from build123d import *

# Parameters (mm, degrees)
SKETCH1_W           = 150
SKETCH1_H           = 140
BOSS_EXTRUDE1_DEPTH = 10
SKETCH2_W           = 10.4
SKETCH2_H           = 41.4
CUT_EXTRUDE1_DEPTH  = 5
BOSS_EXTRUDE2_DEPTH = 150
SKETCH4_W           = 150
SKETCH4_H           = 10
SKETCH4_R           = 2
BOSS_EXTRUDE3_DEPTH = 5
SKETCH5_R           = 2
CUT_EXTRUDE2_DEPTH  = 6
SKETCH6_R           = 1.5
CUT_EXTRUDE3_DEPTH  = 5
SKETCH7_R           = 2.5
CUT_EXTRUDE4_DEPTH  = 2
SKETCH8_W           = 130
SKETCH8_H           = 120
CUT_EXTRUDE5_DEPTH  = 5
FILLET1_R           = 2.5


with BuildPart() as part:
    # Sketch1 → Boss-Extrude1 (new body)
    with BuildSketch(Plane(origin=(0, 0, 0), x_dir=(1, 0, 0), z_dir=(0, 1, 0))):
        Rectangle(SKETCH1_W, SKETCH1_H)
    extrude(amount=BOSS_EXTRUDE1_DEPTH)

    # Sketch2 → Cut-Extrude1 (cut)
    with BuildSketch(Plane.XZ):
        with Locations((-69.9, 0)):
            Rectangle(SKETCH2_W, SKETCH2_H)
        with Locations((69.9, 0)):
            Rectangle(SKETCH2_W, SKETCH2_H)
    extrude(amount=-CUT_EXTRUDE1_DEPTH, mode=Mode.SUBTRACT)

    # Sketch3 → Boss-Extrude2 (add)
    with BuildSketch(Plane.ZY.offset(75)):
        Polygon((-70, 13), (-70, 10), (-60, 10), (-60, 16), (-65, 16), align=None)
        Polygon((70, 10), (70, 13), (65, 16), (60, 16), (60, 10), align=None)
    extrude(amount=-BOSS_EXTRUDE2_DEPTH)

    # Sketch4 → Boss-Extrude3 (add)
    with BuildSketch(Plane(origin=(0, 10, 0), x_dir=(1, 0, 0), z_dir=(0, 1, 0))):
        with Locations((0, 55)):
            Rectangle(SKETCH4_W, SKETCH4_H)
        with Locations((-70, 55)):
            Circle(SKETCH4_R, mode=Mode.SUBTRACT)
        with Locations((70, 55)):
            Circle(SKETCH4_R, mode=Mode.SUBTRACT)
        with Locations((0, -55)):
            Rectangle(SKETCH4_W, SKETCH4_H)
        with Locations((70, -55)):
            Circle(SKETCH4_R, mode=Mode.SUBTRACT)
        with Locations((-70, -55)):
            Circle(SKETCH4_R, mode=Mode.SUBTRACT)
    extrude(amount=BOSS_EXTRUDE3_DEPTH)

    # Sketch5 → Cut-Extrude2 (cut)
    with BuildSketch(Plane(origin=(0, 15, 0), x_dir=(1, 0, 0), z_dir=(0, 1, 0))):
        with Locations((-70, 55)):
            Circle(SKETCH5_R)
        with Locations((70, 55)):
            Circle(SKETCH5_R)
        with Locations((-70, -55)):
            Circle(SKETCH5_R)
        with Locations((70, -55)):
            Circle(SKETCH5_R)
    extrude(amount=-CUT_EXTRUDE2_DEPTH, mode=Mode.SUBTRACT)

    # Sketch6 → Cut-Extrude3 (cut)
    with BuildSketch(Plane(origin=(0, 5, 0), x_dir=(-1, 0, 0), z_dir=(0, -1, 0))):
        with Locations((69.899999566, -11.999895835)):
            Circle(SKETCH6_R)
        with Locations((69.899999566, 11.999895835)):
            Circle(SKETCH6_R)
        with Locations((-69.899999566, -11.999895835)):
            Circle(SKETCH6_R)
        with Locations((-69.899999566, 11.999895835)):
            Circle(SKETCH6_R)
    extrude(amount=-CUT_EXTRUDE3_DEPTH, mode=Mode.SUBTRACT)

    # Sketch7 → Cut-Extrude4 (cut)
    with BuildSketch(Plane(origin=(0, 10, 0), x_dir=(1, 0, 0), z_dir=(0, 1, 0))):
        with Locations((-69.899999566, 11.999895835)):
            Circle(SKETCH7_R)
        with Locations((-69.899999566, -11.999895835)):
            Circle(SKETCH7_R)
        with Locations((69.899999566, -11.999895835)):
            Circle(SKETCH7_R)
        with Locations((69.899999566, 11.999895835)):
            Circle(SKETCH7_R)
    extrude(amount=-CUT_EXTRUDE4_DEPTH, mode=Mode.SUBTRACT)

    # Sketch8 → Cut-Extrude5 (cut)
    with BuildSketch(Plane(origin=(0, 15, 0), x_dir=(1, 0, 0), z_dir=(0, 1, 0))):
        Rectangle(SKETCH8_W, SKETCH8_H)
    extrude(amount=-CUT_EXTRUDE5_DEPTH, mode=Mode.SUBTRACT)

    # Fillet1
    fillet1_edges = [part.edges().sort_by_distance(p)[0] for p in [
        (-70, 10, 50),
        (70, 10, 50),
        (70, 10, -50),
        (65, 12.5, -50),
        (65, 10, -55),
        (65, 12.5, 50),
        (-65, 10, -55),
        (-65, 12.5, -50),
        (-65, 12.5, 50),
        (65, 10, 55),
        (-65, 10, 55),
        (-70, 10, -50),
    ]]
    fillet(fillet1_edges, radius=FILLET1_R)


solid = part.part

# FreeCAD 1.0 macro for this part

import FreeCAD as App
import Part
import Sketcher
from FreeCAD import Vector
Q = App.Units.Quantity


def edges_at(feature, points):
    """Names of the edges that pass closest to the given points."""
    edges = feature.Shape.Edges
    near = lambda p: min(range(len(edges)), key=lambda i: edges[i].distToShape(Part.Vertex(*p))[0])
    return sorted({f"Edge{near(p) + 1}" for p in points})

doc = App.newDocument("Part")
body = doc.addObject("PartDesign::Body", "Body")

# Sketch on XZ plane
sketch1 = body.newObject("Sketcher::SketchObject", "Sketch")
sketch1.AttachmentSupport = (doc.getObject("XZ_Plane"), [""])
sketch1.MapMode = "FlatFace"
sketch1.addGeometry(Part.LineSegment(Vector(-75, -70, 0), Vector(-75, 70, 0)), False)
sketch1.addGeometry(Part.LineSegment(Vector(-75, 70, 0), Vector(75, 70, 0)), False)
sketch1.addGeometry(Part.LineSegment(Vector(75, 70, 0), Vector(75, -70, 0)), False)
sketch1.addGeometry(Part.LineSegment(Vector(75, -70, 0), Vector(-75, -70, 0)), False)
sketch1.addConstraint(Sketcher.Constraint("Coincident", 0, 2, 1, 1))
sketch1.addConstraint(Sketcher.Constraint("Coincident", 1, 2, 2, 1))
sketch1.addConstraint(Sketcher.Constraint("Coincident", 2, 2, 3, 1))
sketch1.addConstraint(Sketcher.Constraint("Coincident", 3, 2, 0, 1))
sketch1.addConstraint(Sketcher.Constraint("Vertical", 0))
sketch1.addConstraint(Sketcher.Constraint("Horizontal", 1))
sketch1.addConstraint(Sketcher.Constraint("Vertical", 2))
sketch1.addConstraint(Sketcher.Constraint("Horizontal", 3))
sketch1.addConstraint(Sketcher.Constraint("Symmetric", 0, 2, 2, 2, -1, 1))
sketch1.addConstraint(Sketcher.Constraint("DistanceX", 1, 1, 1, 2, Q("150 mm")))
sketch1.addConstraint(Sketcher.Constraint("DistanceY", 0, 1, 0, 2, Q("140 mm")))
pad1 = body.newObject("PartDesign::Pad", "Pad")
pad1.Profile = sketch1
pad1.Length = 10
pad1.Reversed = True

# Sketch on XZ plane
sketch2 = body.newObject("Sketcher::SketchObject", "Sketch001")
sketch2.AttachmentSupport = (doc.getObject("XZ_Plane"), [""])
sketch2.MapMode = "FlatFace"
sketch2.addGeometry(Part.LineSegment(Vector(-75, 21, 0), Vector(-75, -21, 0)), False)
sketch2.addGeometry(Part.LineSegment(Vector(-75, -21, 0), Vector(-65, -21, 0)), False)
sketch2.addGeometry(Part.LineSegment(Vector(-65, -21, 0), Vector(-65, 21, 0)), False)
sketch2.addGeometry(Part.LineSegment(Vector(-65, 21, 0), Vector(-75, 21, 0)), False)
sketch2.addGeometry(Part.LineSegment(Vector(65, 21, 0), Vector(65, -21, 0)), False)
sketch2.addGeometry(Part.LineSegment(Vector(65, -21, 0), Vector(75, -21, 0)), False)
sketch2.addGeometry(Part.LineSegment(Vector(75, -21, 0), Vector(75, 21, 0)), False)
sketch2.addGeometry(Part.LineSegment(Vector(75, 21, 0), Vector(65, 21, 0)), False)
sketch2.addConstraint(Sketcher.Constraint("Coincident", 0, 2, 1, 1))
sketch2.addConstraint(Sketcher.Constraint("Coincident", 1, 2, 2, 1))
sketch2.addConstraint(Sketcher.Constraint("Coincident", 2, 2, 3, 1))
sketch2.addConstraint(Sketcher.Constraint("Coincident", 3, 2, 0, 1))
sketch2.addConstraint(Sketcher.Constraint("Coincident", 4, 2, 5, 1))
sketch2.addConstraint(Sketcher.Constraint("Coincident", 5, 2, 6, 1))
sketch2.addConstraint(Sketcher.Constraint("Coincident", 6, 2, 7, 1))
sketch2.addConstraint(Sketcher.Constraint("Coincident", 7, 2, 4, 1))
sketch2.addConstraint(Sketcher.Constraint("Vertical", 0))
sketch2.addConstraint(Sketcher.Constraint("Horizontal", 1))
sketch2.addConstraint(Sketcher.Constraint("Vertical", 2))
sketch2.addConstraint(Sketcher.Constraint("Horizontal", 3))
sketch2.addConstraint(Sketcher.Constraint("Vertical", 4))
sketch2.addConstraint(Sketcher.Constraint("Horizontal", 5))
sketch2.addConstraint(Sketcher.Constraint("Vertical", 6))
sketch2.addConstraint(Sketcher.Constraint("Horizontal", 7))
sketch2.addConstraint(Sketcher.Constraint("Symmetric", 2, 2, 4, 2, -1, 1))
sketch2.addConstraint(Sketcher.Constraint("Symmetric", 0, 2, 6, 2, -1, 1))
sketch2.addConstraint(Sketcher.Constraint("Horizontal", 1, 2, 4, 2))
sketch2.addConstraint(Sketcher.Constraint("DistanceX", 1, 1, 1, 2, Q("10.4 mm")))
sketch2.addConstraint(Sketcher.Constraint("DistanceY", 0, 2, 0, 1, Q("41.4 mm")))
sketch2.addConstraint(Sketcher.Constraint("DistanceX", 0, 2, -1, 1, Q("75.1 mm")))
pocket1 = body.newObject("PartDesign::Pocket", "Pocket")
pocket1.Profile = sketch2
pocket1.Length = 5

# Sketch on YZ plane
sketch3 = body.newObject("Sketcher::SketchObject", "Sketch002")
sketch3.AttachmentSupport = (doc.getObject("YZ_Plane"), [""])
sketch3.MapMode = "FlatFace"
sketch3.AttachmentOffset = App.Placement(Vector(0, 0, -75), App.Rotation())
sketch3.addGeometry(Part.LineSegment(Vector(13, -70, 0), Vector(10, -70, 0)), False)
sketch3.addGeometry(Part.LineSegment(Vector(10, -70, 0), Vector(10, -60, 0)), False)
sketch3.addGeometry(Part.LineSegment(Vector(10, -60, 0), Vector(16, -60, 0)), False)
sketch3.addGeometry(Part.LineSegment(Vector(16, -60, 0), Vector(16, -65, 0)), False)
sketch3.addGeometry(Part.LineSegment(Vector(16, -65, 0), Vector(13, -70, 0)), False)
sketch3.addGeometry(Part.LineSegment(Vector(10, 70, 0), Vector(13, 70, 0)), False)
sketch3.addGeometry(Part.LineSegment(Vector(13, 70, 0), Vector(16, 65, 0)), False)
sketch3.addGeometry(Part.LineSegment(Vector(16, 65, 0), Vector(16, 60, 0)), False)
sketch3.addGeometry(Part.LineSegment(Vector(16, 60, 0), Vector(10, 60, 0)), False)
sketch3.addGeometry(Part.LineSegment(Vector(10, 60, 0), Vector(10, 70, 0)), False)
sketch3.addConstraint(Sketcher.Constraint("Coincident", 0, 2, 1, 1))
sketch3.addConstraint(Sketcher.Constraint("Coincident", 1, 2, 2, 1))
sketch3.addConstraint(Sketcher.Constraint("Coincident", 2, 2, 3, 1))
sketch3.addConstraint(Sketcher.Constraint("Coincident", 3, 2, 4, 1))
sketch3.addConstraint(Sketcher.Constraint("Coincident", 4, 2, 0, 1))
sketch3.addConstraint(Sketcher.Constraint("Coincident", 5, 2, 6, 1))
sketch3.addConstraint(Sketcher.Constraint("Coincident", 6, 2, 7, 1))
sketch3.addConstraint(Sketcher.Constraint("Coincident", 7, 2, 8, 1))
sketch3.addConstraint(Sketcher.Constraint("Coincident", 8, 2, 9, 1))
sketch3.addConstraint(Sketcher.Constraint("Coincident", 9, 2, 5, 1))
sketch3.addConstraint(Sketcher.Constraint("Horizontal", 0))
sketch3.addConstraint(Sketcher.Constraint("Vertical", 1))
sketch3.addConstraint(Sketcher.Constraint("Horizontal", 2))
sketch3.addConstraint(Sketcher.Constraint("Vertical", 3))
sketch3.addConstraint(Sketcher.Constraint("Horizontal", 5))
sketch3.addConstraint(Sketcher.Constraint("Vertical", 7))
sketch3.addConstraint(Sketcher.Constraint("Horizontal", 8))
sketch3.addConstraint(Sketcher.Constraint("Vertical", 9))
sketch3.addConstraint(Sketcher.Constraint("Symmetric", 4, 2, 5, 2, -1))
sketch3.addConstraint(Sketcher.Constraint("Symmetric", 3, 2, 6, 2, -1))
sketch3.addConstraint(Sketcher.Constraint("Symmetric", 1, 2, 8, 2, -1))
sketch3.addConstraint(Sketcher.Constraint("DistanceX", 0, 2, 0, 1, Q("3 mm")))
sketch3.addConstraint(Sketcher.Constraint("DistanceX", 2, 1, 2, 2, Q("6 mm")))
sketch3.addConstraint(Sketcher.Constraint("DistanceY", 1, 1, 1, 2, Q("10 mm")))
sketch3.addConstraint(Sketcher.Constraint("DistanceY", 3, 2, 3, 1, Q("5 mm")))
sketch3.addConstraint(Sketcher.Constraint("DistanceX", -1, 1, 0, 2, Q("10 mm")))
sketch3.addConstraint(Sketcher.Constraint("DistanceY", 0, 2, -1, 1, Q("70 mm")))
pad2 = body.newObject("PartDesign::Pad", "Pad001")
pad2.Profile = sketch3
pad2.Length = 150

# Sketch on XZ plane
sketch4 = body.newObject("Sketcher::SketchObject", "Sketch003")
sketch4.AttachmentSupport = (doc.getObject("XZ_Plane"), [""])
sketch4.MapMode = "FlatFace"
sketch4.AttachmentOffset = App.Placement(Vector(0, 0, -10), App.Rotation())
sketch4.addGeometry(Part.LineSegment(Vector(-75, -60, 0), Vector(-75, -50, 0)), False)
sketch4.addGeometry(Part.LineSegment(Vector(-75, -50, 0), Vector(75, -50, 0)), False)
sketch4.addGeometry(Part.LineSegment(Vector(75, -50, 0), Vector(75, -60, 0)), False)
sketch4.addGeometry(Part.LineSegment(Vector(75, -60, 0), Vector(-75, -60, 0)), False)
sketch4.addGeometry(Part.Circle(Vector(-70, -55, 0), Vector(0, 0, 1), 2), False)
sketch4.addGeometry(Part.Circle(Vector(70, -55, 0), Vector(0, 0, 1), 2), False)
sketch4.addGeometry(Part.LineSegment(Vector(-75, 50, 0), Vector(-75, 60, 0)), False)
sketch4.addGeometry(Part.LineSegment(Vector(-75, 60, 0), Vector(75, 60, 0)), False)
sketch4.addGeometry(Part.LineSegment(Vector(75, 60, 0), Vector(75, 50, 0)), False)
sketch4.addGeometry(Part.LineSegment(Vector(75, 50, 0), Vector(-75, 50, 0)), False)
sketch4.addGeometry(Part.Circle(Vector(-70, 55, 0), Vector(0, 0, 1), 2), False)
sketch4.addGeometry(Part.Circle(Vector(70, 55, 0), Vector(0, 0, 1), 2), False)
sketch4.addConstraint(Sketcher.Constraint("Coincident", 0, 2, 1, 1))
sketch4.addConstraint(Sketcher.Constraint("Coincident", 1, 2, 2, 1))
sketch4.addConstraint(Sketcher.Constraint("Coincident", 2, 2, 3, 1))
sketch4.addConstraint(Sketcher.Constraint("Coincident", 3, 2, 0, 1))
sketch4.addConstraint(Sketcher.Constraint("Coincident", 6, 2, 7, 1))
sketch4.addConstraint(Sketcher.Constraint("Coincident", 7, 2, 8, 1))
sketch4.addConstraint(Sketcher.Constraint("Coincident", 8, 2, 9, 1))
sketch4.addConstraint(Sketcher.Constraint("Coincident", 9, 2, 6, 1))
sketch4.addConstraint(Sketcher.Constraint("Vertical", 0))
sketch4.addConstraint(Sketcher.Constraint("Horizontal", 1))
sketch4.addConstraint(Sketcher.Constraint("Vertical", 2))
sketch4.addConstraint(Sketcher.Constraint("Horizontal", 3))
sketch4.addConstraint(Sketcher.Constraint("Vertical", 6))
sketch4.addConstraint(Sketcher.Constraint("Horizontal", 7))
sketch4.addConstraint(Sketcher.Constraint("Vertical", 8))
sketch4.addConstraint(Sketcher.Constraint("Horizontal", 9))
sketch4.addConstraint(Sketcher.Constraint("Equal", 4, 5))
sketch4.addConstraint(Sketcher.Constraint("Equal", 5, 10))
sketch4.addConstraint(Sketcher.Constraint("Equal", 10, 11))
sketch4.addConstraint(Sketcher.Constraint("Symmetric", 5, 3, 10, 3, -1, 1))
sketch4.addConstraint(Sketcher.Constraint("Symmetric", 4, 3, 11, 3, -1, 1))
sketch4.addConstraint(Sketcher.Constraint("Symmetric", 2, 2, 6, 2, -1, 1))
sketch4.addConstraint(Sketcher.Constraint("Symmetric", 0, 2, 8, 2, -1, 1))
sketch4.addConstraint(Sketcher.Constraint("Symmetric", 4, 3, 5, 3, -2))
sketch4.addConstraint(Sketcher.Constraint("Vertical", 3, 2, 6, 2))
sketch4.addConstraint(Sketcher.Constraint("Diameter", 4, Q("4 mm")))
sketch4.addConstraint(Sketcher.Constraint("DistanceX", 1, 1, 1, 2, Q("150 mm")))
sketch4.addConstraint(Sketcher.Constraint("DistanceY", 0, 1, 0, 2, Q("10 mm")))
sketch4.addConstraint(Sketcher.Constraint("DistanceX", 4, 3, -1, 1, Q("70 mm")))
sketch4.addConstraint(Sketcher.Constraint("DistanceY", 4, 3, -1, 1, Q("55 mm")))
sketch4.addConstraint(Sketcher.Constraint("DistanceY", 0, 2, -1, 1, Q("50 mm")))
pad3 = body.newObject("PartDesign::Pad", "Pad002")
pad3.Profile = sketch4
pad3.Length = 5
pad3.Reversed = True

# Sketch on XZ plane
sketch5 = body.newObject("Sketcher::SketchObject", "Sketch004")
sketch5.AttachmentSupport = (doc.getObject("XZ_Plane"), [""])
sketch5.MapMode = "FlatFace"
sketch5.AttachmentOffset = App.Placement(Vector(0, 0, -15), App.Rotation())
sketch5.addGeometry(Part.Circle(Vector(-70, -55, 0), Vector(0, 0, 1), 2), False)
sketch5.addGeometry(Part.Circle(Vector(70, -55, 0), Vector(0, 0, 1), 2), False)
sketch5.addGeometry(Part.Circle(Vector(-70, 55, 0), Vector(0, 0, 1), 2), False)
sketch5.addGeometry(Part.Circle(Vector(70, 55, 0), Vector(0, 0, 1), 2), False)
sketch5.addConstraint(Sketcher.Constraint("Equal", 0, 1))
sketch5.addConstraint(Sketcher.Constraint("Equal", 1, 2))
sketch5.addConstraint(Sketcher.Constraint("Equal", 2, 3))
sketch5.addConstraint(Sketcher.Constraint("Symmetric", 1, 3, 2, 3, -1, 1))
sketch5.addConstraint(Sketcher.Constraint("Symmetric", 0, 3, 3, 3, -1, 1))
sketch5.addConstraint(Sketcher.Constraint("Symmetric", 0, 3, 1, 3, -2))
sketch5.addConstraint(Sketcher.Constraint("Diameter", 0, Q("4 mm")))
sketch5.addConstraint(Sketcher.Constraint("DistanceX", 0, 3, -1, 1, Q("70 mm")))
sketch5.addConstraint(Sketcher.Constraint("DistanceY", 0, 3, -1, 1, Q("55 mm")))
pocket2 = body.newObject("PartDesign::Pocket", "Pocket001")
pocket2.Profile = sketch5
pocket2.Length = 6
pocket2.Reversed = True

# Sketch on XZ plane
sketch6 = body.newObject("Sketcher::SketchObject", "Sketch005")
sketch6.AttachmentSupport = (doc.getObject("XZ_Plane"), [""])
sketch6.MapMode = "FlatFace"
sketch6.AttachmentOffset = App.Placement(Vector(0, 0, -5), App.Rotation())
sketch6.addGeometry(Part.Circle(Vector(-69.9, 12, 0), Vector(0, 0, 1), 1.5), False)
sketch6.addGeometry(Part.Circle(Vector(-69.9, -12, 0), Vector(0, 0, 1), 1.5), False)
sketch6.addGeometry(Part.Circle(Vector(69.9, 12, 0), Vector(0, 0, 1), 1.5), False)
sketch6.addGeometry(Part.Circle(Vector(69.9, -12, 0), Vector(0, 0, 1), 1.5), False)
sketch6.addConstraint(Sketcher.Constraint("Equal", 0, 1))
sketch6.addConstraint(Sketcher.Constraint("Equal", 1, 2))
sketch6.addConstraint(Sketcher.Constraint("Equal", 2, 3))
sketch6.addConstraint(Sketcher.Constraint("Symmetric", 1, 3, 2, 3, -1, 1))
sketch6.addConstraint(Sketcher.Constraint("Symmetric", 0, 3, 3, 3, -1, 1))
sketch6.addConstraint(Sketcher.Constraint("Symmetric", 0, 3, 2, 3, -2))
sketch6.addConstraint(Sketcher.Constraint("Diameter", 0, Q("3 mm")))
sketch6.addConstraint(Sketcher.Constraint("DistanceX", 0, 3, -1, 1, Q("69.9 mm")))
sketch6.addConstraint(Sketcher.Constraint("DistanceY", 1, 3, 0, 3, Q("23.999792 mm")))
pocket3 = body.newObject("PartDesign::Pocket", "Pocket002")
pocket3.Profile = sketch6
pocket3.Length = 5

# Sketch on XZ plane
sketch7 = body.newObject("Sketcher::SketchObject", "Sketch006")
sketch7.AttachmentSupport = (doc.getObject("XZ_Plane"), [""])
sketch7.MapMode = "FlatFace"
sketch7.AttachmentOffset = App.Placement(Vector(0, 0, -10), App.Rotation())
sketch7.addGeometry(Part.Circle(Vector(-69.9, -12, 0), Vector(0, 0, 1), 2.5), False)
sketch7.addGeometry(Part.Circle(Vector(-69.9, 12, 0), Vector(0, 0, 1), 2.5), False)
sketch7.addGeometry(Part.Circle(Vector(69.9, 12, 0), Vector(0, 0, 1), 2.5), False)
sketch7.addGeometry(Part.Circle(Vector(69.9, -12, 0), Vector(0, 0, 1), 2.5), False)
sketch7.addConstraint(Sketcher.Constraint("Equal", 0, 1))
sketch7.addConstraint(Sketcher.Constraint("Equal", 1, 2))
sketch7.addConstraint(Sketcher.Constraint("Equal", 2, 3))
sketch7.addConstraint(Sketcher.Constraint("Symmetric", 0, 3, 2, 3, -1, 1))
sketch7.addConstraint(Sketcher.Constraint("Symmetric", 1, 3, 3, 3, -1, 1))
sketch7.addConstraint(Sketcher.Constraint("Symmetric", 1, 3, 2, 3, -2))
sketch7.addConstraint(Sketcher.Constraint("Diameter", 0, Q("5 mm")))
sketch7.addConstraint(Sketcher.Constraint("DistanceX", 0, 3, -1, 1, Q("69.9 mm")))
sketch7.addConstraint(Sketcher.Constraint("DistanceY", 0, 3, 1, 3, Q("23.999792 mm")))
pocket4 = body.newObject("PartDesign::Pocket", "Pocket003")
pocket4.Profile = sketch7
pocket4.Length = 2
pocket4.Reversed = True

# Sketch on XZ plane
sketch8 = body.newObject("Sketcher::SketchObject", "Sketch007")
sketch8.AttachmentSupport = (doc.getObject("XZ_Plane"), [""])
sketch8.MapMode = "FlatFace"
sketch8.AttachmentOffset = App.Placement(Vector(0, 0, -15), App.Rotation())
sketch8.addGeometry(Part.LineSegment(Vector(-65, -60, 0), Vector(-65, 60, 0)), False)
sketch8.addGeometry(Part.LineSegment(Vector(-65, 60, 0), Vector(65, 60, 0)), False)
sketch8.addGeometry(Part.LineSegment(Vector(65, 60, 0), Vector(65, -60, 0)), False)
sketch8.addGeometry(Part.LineSegment(Vector(65, -60, 0), Vector(-65, -60, 0)), False)
sketch8.addConstraint(Sketcher.Constraint("Coincident", 0, 2, 1, 1))
sketch8.addConstraint(Sketcher.Constraint("Coincident", 1, 2, 2, 1))
sketch8.addConstraint(Sketcher.Constraint("Coincident", 2, 2, 3, 1))
sketch8.addConstraint(Sketcher.Constraint("Coincident", 3, 2, 0, 1))
sketch8.addConstraint(Sketcher.Constraint("Vertical", 0))
sketch8.addConstraint(Sketcher.Constraint("Horizontal", 1))
sketch8.addConstraint(Sketcher.Constraint("Vertical", 2))
sketch8.addConstraint(Sketcher.Constraint("Horizontal", 3))
sketch8.addConstraint(Sketcher.Constraint("Symmetric", 0, 2, 2, 2, -1, 1))
sketch8.addConstraint(Sketcher.Constraint("DistanceX", 1, 1, 1, 2, Q("130 mm")))
sketch8.addConstraint(Sketcher.Constraint("DistanceY", 0, 1, 0, 2, Q("120 mm")))
pocket5 = body.newObject("PartDesign::Pocket", "Pocket004")
pocket5.Profile = sketch8
pocket5.Length = 5
pocket5.Reversed = True
doc.recompute()

fillet = body.newObject("PartDesign::Fillet", "Fillet")
fillet.Base = (pocket5, edges_at(pocket5, [
    (-70, 10, 50),
    (70, 10, 50),
    (70, 10, -50),
    (65, 12.5, -50),
    (65, 10, -55),
    (65, 12.5, 50),
    (-65, 10, -55),
    (-65, 12.5, -50),
    (-65, 12.5, 50),
    (65, 10, 55),
    (-65, 10, 55),
    (-70, 10, -50),
]))
fillet.Radius = 2.5

doc.recompute()
